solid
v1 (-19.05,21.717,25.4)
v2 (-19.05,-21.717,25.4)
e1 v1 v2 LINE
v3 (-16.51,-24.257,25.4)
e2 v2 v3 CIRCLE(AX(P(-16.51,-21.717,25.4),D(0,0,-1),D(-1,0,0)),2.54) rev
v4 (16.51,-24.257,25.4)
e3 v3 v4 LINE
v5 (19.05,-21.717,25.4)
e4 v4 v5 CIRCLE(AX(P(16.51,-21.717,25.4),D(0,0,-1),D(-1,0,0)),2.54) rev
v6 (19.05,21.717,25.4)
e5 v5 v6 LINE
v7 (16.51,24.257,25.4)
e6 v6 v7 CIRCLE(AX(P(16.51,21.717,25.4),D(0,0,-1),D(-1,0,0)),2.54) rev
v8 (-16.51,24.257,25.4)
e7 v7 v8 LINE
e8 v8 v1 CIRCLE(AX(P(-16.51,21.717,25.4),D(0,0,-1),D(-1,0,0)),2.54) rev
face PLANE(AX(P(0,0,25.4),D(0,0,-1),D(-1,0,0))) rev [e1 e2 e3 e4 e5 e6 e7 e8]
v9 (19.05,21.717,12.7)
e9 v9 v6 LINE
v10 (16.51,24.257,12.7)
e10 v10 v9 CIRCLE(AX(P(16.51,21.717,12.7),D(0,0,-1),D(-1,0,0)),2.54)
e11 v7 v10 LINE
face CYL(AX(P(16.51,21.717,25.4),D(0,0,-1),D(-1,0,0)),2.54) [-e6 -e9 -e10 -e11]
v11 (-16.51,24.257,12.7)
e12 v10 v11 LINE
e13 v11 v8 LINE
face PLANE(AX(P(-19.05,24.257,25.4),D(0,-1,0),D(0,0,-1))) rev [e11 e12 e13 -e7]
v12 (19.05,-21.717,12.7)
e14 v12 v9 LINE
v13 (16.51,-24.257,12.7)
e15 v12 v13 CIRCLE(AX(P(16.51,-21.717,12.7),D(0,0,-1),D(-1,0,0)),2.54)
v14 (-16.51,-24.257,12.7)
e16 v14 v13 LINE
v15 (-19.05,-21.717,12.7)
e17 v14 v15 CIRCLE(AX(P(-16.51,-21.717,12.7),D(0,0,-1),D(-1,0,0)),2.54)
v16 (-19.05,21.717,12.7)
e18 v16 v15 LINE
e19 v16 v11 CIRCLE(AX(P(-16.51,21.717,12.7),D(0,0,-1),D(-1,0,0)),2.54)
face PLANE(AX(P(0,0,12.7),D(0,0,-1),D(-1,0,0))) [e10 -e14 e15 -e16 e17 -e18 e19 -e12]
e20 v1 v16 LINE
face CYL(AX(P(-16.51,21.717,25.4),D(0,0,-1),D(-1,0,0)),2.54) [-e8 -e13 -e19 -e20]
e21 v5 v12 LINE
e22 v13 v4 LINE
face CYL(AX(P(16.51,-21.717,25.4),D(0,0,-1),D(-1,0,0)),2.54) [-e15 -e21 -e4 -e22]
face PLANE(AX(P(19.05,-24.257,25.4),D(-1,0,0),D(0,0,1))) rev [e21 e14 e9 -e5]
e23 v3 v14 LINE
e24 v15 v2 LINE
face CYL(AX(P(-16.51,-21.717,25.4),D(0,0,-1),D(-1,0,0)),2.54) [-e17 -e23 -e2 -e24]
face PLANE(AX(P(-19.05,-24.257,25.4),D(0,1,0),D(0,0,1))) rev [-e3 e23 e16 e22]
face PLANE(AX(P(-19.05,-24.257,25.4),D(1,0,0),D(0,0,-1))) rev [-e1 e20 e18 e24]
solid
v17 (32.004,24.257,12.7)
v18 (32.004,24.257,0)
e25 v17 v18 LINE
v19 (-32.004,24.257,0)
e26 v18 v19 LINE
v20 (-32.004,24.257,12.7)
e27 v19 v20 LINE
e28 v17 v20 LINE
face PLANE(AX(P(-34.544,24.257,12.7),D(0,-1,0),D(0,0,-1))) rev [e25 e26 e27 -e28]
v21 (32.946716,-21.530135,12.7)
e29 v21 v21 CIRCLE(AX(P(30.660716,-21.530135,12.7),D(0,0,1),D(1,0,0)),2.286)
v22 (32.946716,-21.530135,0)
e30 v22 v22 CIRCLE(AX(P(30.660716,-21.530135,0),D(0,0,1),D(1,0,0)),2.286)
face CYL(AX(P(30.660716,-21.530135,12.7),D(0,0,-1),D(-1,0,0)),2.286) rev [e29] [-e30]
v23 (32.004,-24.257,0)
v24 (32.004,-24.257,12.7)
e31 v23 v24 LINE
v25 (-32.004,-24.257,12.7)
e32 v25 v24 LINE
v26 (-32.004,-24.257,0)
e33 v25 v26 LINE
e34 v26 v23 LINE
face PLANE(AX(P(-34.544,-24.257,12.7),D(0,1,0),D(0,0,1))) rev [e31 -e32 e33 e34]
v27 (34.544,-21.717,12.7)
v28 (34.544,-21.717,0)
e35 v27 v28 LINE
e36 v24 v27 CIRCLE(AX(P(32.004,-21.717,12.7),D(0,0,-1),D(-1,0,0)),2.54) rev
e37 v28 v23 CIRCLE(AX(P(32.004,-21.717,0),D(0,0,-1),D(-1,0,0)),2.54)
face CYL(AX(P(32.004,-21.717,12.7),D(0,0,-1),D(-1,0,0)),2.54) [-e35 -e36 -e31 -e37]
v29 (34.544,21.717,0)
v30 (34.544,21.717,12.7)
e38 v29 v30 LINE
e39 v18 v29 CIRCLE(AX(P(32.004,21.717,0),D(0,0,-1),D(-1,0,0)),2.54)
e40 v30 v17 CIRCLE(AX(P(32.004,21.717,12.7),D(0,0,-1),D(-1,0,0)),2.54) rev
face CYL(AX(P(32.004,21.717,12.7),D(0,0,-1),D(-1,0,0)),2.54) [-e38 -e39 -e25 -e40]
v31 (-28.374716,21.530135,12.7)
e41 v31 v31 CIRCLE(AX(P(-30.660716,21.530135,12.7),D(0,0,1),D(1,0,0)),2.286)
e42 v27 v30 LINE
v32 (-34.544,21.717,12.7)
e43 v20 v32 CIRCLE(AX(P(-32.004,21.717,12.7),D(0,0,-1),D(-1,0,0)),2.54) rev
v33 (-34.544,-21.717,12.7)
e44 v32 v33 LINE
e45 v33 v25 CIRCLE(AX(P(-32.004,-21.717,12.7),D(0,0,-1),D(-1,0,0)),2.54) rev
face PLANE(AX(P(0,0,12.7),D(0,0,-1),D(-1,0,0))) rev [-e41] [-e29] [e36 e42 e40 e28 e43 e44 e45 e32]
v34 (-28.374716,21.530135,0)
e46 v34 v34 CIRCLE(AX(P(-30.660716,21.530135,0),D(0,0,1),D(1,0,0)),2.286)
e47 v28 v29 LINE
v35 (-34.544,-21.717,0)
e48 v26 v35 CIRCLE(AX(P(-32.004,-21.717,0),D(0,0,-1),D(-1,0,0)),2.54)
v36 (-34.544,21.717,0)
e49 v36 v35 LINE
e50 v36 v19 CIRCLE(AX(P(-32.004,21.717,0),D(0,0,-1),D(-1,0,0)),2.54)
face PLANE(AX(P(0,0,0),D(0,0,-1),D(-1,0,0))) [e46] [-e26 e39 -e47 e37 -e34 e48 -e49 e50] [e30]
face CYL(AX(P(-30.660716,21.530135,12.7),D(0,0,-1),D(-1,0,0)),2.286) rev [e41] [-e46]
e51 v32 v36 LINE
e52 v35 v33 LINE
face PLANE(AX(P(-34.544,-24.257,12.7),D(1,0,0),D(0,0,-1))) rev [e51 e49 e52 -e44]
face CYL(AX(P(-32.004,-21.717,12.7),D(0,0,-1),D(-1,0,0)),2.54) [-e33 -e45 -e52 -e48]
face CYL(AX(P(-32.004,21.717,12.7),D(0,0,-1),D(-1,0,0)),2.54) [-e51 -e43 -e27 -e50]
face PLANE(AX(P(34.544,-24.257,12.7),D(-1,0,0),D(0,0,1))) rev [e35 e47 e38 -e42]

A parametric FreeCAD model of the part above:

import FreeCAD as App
import Part
import Sketcher
Q = App.Units.Quantity


def edges_at(feature, points):
    """Names of the edges that pass closest to the given points."""
    edges = feature.Shape.Edges
    near = lambda p: min(range(len(edges)), key=lambda i: edges[i].distToShape(Part.Vertex(*p))[0])
    return sorted({f"Edge{near(p) + 1}" for p in points})


def add_polygon(sketch, points):
    """Adds a closed chain of lines whose ends are joined by coincident constraints."""
    first, n = sketch.GeometryCount, len(points)
    for a, b in zip(points, points[1:] + points[:1]):
        sketch.addGeometry(Part.LineSegment(App.Vector(*a, 0), App.Vector(*b, 0)), False)
    for i in range(n):
        sketch.addConstraint(Sketcher.Constraint("Coincident", first + i, 2, first + (i + 1) % n, 1))

doc = App.newDocument("Part")
body = doc.addObject("PartDesign::Body", "Body")

# Sketch on XY plane
sketch1 = body.newObject("Sketcher::SketchObject", "Sketch")
sketch1.AttachmentSupport = (doc.getObject("XY_Plane"), [""])
sketch1.MapMode = "FlatFace"
add_polygon(sketch1, [(-34.5, 24.3), (-34.5, -24.3), (34.5, -24.3), (34.5, 24.3)])  # lines 0-3
sketch1.addGeometry(Part.Circle(App.Vector(30.7, -21.5, 0), App.Vector(0, 0, 1), 2.3), False)  # 4
sketch1.addGeometry(Part.Circle(App.Vector(-30.7, 21.5, 0), App.Vector(0, 0, 1), 2.3), False)  # 5
sketch1.addConstraint(Sketcher.Constraint("Vertical", 0))
sketch1.addConstraint(Sketcher.Constraint("Horizontal", 1))
sketch1.addConstraint(Sketcher.Constraint("Vertical", 2))
sketch1.addConstraint(Sketcher.Constraint("Horizontal", 3))
sketch1.addConstraint(Sketcher.Constraint("Equal", 4, 5))
sketch1.addConstraint(Sketcher.Constraint("Symmetric", 4, 3, 5, 3, -1, 1))
sketch1.addConstraint(Sketcher.Constraint("Symmetric", 0, 2, 2, 2, -1, 1))
sketch1.addConstraint(Sketcher.Constraint("Diameter", 4, Q("0.18 in")))
sketch1.addConstraint(Sketcher.Constraint("DistanceX", 1, 1, 1, 2, Q("2.72 in")))
sketch1.addConstraint(Sketcher.Constraint("DistanceY", 0, 2, 0, 1, Q("1.91 in")))
sketch1.addConstraint(Sketcher.Constraint("DistanceY", 4, 3, 5, 3, 43.06027))
sketch1.addConstraint(Sketcher.Constraint("DistanceX", -1, 1, 4, 3, 30.660716))
pad1 = body.newObject("PartDesign::Pad", "Pad")
pad1.Profile = sketch1
pad1.Length = Q("0.5 in")
doc.recompute()

fillet = body.newObject("PartDesign::Fillet", "Fillet")
fillet.Base = (pad1, edges_at(pad1, [
    (34.544, -24.257, 6.35),
    (-34.544, -24.257, 6.35),
    (-34.544, 24.257, 6.35),
    (34.544, 24.257, 6.35),
]))
fillet.Radius = Q("0.1 in")
body2 = doc.addObject("PartDesign::Body", "Body001")

# Sketch on XY plane
sketch2 = body2.newObject("Sketcher::SketchObject", "Sketch001")
sketch2.AttachmentSupport = (doc.getObject("XY_Plane001"), [""])
sketch2.MapMode = "FlatFace"
sketch2.AttachmentOffset = App.Placement(App.Vector(0, 0, 0.5 * 25.4), App.Rotation())
add_polygon(sketch2, [(-19, 24), (-19, -24), (19, -24), (19, 24)])  # lines 0-3
sketch2.addConstraint(Sketcher.Constraint("Vertical", 0))
sketch2.addConstraint(Sketcher.Constraint("Horizontal", 1))
sketch2.addConstraint(Sketcher.Constraint("Vertical", 2))
sketch2.addConstraint(Sketcher.Constraint("Horizontal", 3))
sketch2.addConstraint(Sketcher.Constraint("Symmetric", 0, 2, 2, 2, -1, 1))
sketch2.addConstraint(Sketcher.Constraint("DistanceX", 1, 1, 1, 2, Q("1.5 in")))
sketch2.addConstraint(Sketcher.Constraint("DistanceY", 0, 2, 0, 1, Q("1.91 in")))
pad2 = body2.newObject("PartDesign::Pad", "Pad001")
pad2.Profile = sketch2
pad2.Length = Q("0.5 in")
doc.recompute()

fillet2 = body2.newObject("PartDesign::Fillet", "Fillet001")
fillet2.Base = (pad2, edges_at(pad2, [
    (19.05, -24.257, 19.05),
    (-19.05, -24.257, 19.05),
    (-19.05, 24.257, 19.05),
    (19.05, 24.257, 19.05),
]))
fillet2.Radius = Q("0.1 in")

doc.recompute()
